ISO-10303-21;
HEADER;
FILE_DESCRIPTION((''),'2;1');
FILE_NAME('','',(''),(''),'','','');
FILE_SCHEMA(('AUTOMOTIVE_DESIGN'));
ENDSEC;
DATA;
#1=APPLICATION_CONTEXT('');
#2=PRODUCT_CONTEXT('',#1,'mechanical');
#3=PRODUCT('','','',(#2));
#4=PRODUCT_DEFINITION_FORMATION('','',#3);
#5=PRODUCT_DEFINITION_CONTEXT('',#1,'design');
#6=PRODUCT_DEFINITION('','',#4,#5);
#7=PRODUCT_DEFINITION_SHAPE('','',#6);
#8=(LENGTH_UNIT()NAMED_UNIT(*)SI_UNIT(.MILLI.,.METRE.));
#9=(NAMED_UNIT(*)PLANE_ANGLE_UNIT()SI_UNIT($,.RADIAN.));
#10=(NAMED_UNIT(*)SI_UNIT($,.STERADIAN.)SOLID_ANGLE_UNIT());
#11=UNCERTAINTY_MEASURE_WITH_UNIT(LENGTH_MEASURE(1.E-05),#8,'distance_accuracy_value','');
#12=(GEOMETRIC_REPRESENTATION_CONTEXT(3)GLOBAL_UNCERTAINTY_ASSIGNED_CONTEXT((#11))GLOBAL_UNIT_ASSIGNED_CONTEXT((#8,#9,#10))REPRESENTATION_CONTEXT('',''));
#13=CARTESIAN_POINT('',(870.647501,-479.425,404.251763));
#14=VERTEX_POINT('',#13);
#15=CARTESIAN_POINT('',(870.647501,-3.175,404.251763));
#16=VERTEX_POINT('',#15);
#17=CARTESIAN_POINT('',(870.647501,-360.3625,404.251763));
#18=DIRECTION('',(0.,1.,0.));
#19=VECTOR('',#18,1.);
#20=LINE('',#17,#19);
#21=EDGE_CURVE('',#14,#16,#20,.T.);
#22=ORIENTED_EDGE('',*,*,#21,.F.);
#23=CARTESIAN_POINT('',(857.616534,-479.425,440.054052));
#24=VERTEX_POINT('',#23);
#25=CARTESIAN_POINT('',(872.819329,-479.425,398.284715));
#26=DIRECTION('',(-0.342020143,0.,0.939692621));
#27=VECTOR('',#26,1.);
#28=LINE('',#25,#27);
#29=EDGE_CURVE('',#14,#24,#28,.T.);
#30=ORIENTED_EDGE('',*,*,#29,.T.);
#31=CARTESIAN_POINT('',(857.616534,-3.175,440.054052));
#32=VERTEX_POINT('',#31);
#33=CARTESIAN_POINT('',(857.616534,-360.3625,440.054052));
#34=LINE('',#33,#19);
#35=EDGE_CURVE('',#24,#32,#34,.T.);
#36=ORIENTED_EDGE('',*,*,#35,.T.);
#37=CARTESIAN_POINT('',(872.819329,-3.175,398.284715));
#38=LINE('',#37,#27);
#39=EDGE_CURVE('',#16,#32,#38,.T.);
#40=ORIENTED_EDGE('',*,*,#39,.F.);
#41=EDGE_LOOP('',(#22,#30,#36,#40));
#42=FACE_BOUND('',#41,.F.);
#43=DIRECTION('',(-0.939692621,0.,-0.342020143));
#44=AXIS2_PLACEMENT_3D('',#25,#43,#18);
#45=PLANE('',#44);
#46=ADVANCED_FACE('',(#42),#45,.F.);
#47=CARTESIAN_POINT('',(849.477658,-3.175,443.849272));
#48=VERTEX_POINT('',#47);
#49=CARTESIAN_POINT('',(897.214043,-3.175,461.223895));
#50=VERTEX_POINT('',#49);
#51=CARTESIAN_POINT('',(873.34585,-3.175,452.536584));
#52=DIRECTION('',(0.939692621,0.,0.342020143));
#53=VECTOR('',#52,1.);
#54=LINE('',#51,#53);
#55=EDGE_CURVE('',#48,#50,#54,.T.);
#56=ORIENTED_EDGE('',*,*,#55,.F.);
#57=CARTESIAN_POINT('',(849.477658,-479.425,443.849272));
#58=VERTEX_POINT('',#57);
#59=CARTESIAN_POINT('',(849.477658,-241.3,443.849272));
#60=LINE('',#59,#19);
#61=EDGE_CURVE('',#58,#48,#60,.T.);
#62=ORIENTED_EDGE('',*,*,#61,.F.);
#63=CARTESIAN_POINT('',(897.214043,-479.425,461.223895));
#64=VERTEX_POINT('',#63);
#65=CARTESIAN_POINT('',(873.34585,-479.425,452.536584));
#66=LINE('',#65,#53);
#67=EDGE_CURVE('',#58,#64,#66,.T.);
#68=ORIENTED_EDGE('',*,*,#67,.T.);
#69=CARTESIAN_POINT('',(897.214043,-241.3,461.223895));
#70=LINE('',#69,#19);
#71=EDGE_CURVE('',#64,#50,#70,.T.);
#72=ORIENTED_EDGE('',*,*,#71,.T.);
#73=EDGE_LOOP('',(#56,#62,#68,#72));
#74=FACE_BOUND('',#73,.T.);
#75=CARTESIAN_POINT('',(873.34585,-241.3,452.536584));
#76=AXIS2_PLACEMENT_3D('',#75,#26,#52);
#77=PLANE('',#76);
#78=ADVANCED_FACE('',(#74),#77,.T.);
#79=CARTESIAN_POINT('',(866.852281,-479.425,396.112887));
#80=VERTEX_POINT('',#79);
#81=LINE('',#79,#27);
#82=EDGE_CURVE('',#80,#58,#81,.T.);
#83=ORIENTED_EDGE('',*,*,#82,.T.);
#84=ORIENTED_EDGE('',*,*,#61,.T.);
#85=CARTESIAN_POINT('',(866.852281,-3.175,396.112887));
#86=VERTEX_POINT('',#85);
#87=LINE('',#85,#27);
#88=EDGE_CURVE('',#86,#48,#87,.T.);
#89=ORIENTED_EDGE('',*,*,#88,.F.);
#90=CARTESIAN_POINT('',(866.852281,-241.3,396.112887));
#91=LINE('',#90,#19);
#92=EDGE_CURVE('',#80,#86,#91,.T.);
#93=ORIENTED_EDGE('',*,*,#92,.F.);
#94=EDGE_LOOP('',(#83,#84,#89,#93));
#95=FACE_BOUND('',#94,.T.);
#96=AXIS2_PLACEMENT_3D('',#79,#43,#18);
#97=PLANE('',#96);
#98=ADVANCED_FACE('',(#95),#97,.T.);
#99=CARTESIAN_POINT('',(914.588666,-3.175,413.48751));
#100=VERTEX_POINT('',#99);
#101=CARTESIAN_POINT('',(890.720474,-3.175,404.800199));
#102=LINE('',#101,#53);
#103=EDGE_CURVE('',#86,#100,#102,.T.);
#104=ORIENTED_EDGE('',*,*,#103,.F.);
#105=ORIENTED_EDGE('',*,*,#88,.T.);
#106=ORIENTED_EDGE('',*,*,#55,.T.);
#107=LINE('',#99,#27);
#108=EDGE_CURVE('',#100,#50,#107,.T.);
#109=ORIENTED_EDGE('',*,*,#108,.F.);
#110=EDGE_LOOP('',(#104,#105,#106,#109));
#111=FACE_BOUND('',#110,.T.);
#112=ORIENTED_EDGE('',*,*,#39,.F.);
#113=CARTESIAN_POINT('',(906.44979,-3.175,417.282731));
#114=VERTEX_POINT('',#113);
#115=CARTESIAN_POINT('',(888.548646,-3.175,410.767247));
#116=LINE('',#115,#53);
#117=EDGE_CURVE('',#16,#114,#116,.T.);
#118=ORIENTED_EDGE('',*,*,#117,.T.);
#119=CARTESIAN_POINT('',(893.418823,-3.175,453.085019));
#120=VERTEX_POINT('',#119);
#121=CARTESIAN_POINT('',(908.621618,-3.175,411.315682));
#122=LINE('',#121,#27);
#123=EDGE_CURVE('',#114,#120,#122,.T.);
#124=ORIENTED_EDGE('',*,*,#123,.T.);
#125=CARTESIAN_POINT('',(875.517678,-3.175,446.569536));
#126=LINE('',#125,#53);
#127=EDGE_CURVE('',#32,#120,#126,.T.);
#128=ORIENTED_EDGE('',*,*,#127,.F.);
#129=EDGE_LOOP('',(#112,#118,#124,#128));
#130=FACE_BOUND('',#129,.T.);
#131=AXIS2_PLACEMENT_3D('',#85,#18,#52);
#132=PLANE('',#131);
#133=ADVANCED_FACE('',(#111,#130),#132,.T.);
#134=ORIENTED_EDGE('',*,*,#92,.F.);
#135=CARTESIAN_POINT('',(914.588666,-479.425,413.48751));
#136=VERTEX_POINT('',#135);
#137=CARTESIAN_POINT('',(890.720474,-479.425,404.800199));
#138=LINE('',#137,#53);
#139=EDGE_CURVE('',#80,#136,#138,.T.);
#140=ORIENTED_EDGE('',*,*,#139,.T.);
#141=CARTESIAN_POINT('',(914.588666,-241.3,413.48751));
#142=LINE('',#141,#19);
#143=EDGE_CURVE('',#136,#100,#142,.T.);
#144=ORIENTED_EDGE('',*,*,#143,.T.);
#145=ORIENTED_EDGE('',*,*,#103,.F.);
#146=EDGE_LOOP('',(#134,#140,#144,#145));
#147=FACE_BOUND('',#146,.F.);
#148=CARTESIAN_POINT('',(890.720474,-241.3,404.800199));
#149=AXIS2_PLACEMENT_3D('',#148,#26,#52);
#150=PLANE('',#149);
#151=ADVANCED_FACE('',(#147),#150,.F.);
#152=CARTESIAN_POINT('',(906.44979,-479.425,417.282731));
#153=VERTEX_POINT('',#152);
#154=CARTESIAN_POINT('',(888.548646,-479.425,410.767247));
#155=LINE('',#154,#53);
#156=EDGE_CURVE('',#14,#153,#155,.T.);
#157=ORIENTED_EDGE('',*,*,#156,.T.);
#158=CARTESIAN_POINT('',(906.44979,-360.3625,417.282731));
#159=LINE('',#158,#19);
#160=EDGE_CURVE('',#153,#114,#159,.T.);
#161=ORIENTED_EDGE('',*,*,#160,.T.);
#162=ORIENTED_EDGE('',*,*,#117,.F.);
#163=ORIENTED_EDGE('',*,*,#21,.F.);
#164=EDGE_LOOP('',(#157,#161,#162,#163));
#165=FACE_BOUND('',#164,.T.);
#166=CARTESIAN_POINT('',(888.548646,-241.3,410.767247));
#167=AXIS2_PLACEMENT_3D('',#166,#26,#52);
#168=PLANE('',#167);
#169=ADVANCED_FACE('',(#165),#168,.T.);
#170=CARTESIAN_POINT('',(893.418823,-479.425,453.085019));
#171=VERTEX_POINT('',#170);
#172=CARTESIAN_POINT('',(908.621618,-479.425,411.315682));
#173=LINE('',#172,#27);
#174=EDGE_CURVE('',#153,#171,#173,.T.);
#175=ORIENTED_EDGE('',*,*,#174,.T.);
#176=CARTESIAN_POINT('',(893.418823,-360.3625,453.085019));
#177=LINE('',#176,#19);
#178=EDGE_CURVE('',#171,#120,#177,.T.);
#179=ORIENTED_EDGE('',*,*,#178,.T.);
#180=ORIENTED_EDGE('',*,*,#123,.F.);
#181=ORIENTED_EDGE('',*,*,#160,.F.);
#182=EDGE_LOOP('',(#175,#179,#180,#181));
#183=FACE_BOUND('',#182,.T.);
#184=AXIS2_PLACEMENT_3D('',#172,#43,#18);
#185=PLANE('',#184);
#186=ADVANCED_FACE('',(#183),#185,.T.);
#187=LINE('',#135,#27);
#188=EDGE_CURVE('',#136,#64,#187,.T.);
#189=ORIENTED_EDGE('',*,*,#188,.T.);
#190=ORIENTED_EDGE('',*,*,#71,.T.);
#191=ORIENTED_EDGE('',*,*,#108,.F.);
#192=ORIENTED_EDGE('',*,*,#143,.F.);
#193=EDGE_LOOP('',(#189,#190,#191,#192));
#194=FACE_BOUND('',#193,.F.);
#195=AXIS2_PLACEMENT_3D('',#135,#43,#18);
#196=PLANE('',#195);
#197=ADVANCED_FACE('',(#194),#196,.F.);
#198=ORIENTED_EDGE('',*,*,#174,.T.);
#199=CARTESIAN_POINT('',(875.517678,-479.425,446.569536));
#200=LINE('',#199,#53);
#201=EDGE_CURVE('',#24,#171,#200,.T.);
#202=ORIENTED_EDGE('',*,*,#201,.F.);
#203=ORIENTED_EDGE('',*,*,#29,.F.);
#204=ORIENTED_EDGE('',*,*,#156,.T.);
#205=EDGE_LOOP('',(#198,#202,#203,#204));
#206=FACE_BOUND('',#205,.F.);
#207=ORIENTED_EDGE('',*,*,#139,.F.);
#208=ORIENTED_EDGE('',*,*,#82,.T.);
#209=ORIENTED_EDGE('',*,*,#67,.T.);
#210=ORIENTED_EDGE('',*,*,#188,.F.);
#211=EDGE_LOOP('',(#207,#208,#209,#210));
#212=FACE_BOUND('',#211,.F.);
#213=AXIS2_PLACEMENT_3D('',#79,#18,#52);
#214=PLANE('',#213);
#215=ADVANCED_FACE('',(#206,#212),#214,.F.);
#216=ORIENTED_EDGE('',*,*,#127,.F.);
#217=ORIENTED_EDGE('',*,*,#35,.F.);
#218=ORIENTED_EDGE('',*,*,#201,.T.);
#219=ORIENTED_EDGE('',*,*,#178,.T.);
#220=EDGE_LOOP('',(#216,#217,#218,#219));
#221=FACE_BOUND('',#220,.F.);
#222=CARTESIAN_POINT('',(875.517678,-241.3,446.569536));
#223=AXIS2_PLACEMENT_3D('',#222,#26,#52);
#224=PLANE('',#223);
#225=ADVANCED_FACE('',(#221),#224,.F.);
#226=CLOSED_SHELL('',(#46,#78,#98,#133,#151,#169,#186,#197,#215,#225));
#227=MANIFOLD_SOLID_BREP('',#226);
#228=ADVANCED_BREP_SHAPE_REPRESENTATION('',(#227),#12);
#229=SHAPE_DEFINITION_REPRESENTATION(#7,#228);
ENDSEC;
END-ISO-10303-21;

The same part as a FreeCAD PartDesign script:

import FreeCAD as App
import Part
import Sketcher

V = App.Vector
Q = App.Units.Quantity


def faces_at(feature, points):
    """Names of the faces that lie closest to the given points."""
    faces = feature.Shape.Faces
    near = lambda p: min(range(len(faces)), key=lambda i: faces[i].distToShape(Part.Vertex(*p))[0])
    return sorted({f"Face{near(p) + 1}" for p in points})


def add_polygon(sketch, points):
    """Adds a closed chain of lines whose ends are joined by coincident constraints."""
    first, n = sketch.GeometryCount, len(points)
    for a, b in zip(points, points[1:] + points[:1]):
        sketch.addGeometry(Part.LineSegment(App.Vector(*a, 0), App.Vector(*b, 0)), False)
    for i in range(n):
        sketch.addConstraint(Sketcher.Constraint("Coincident", first + i, 2, first + (i + 1) % n, 1))

doc = App.newDocument("Part")
body = doc.addObject("PartDesign::Body", "Body")

# Sketch on XY plane
sketch1 = body.newObject("Sketcher::SketchObject", "Sketch")
sketch1.AttachmentSupport = (doc.getObject("XY_Plane"), [""])
sketch1.MapMode = "FlatFace"
add_polygon(sketch1, [(0, 476), (0, 0), (51, 0), (51, 476)])  # lines 0-3
sketch1.addConstraint([
    Sketcher.Constraint("Vertical", 0),
    Sketcher.Constraint("Horizontal", 1),
    Sketcher.Constraint("Vertical", 2),
    Sketcher.Constraint("Horizontal", 3),
    Sketcher.Constraint("Coincident", 0, 2, -1, 1),
    Sketcher.Constraint("DistanceX", 1, 1, 1, 2, Q("2 in")),
    Sketcher.Constraint("DistanceY", 0, 2, 0, 1, Q("18.75 in")),
])
pad1 = body.newObject("PartDesign::Pad", "Pad")
pad1.Profile = sketch1
pad1.Length = Q("2 in")
body2 = doc.addObject("PartDesign::Body", "Body001")
doc.recompute()

body.Placement = App.Placement(V(0, 0, 0), App.Rotation(V(0, 1, 0), 340))
boolean = body2.newObject("PartDesign::Boolean", "Boolean")
boolean.Type = "Fuse"
boolean.addObjects([body])
body3 = doc.addObject("PartDesign::Body", "Body002")
doc.recompute()

body2.Placement = App.Placement(V(866.852281, -479.425, 396.112887), App.Rotation(V(0, 0, 1), 0))
boolean2 = body3.newObject("PartDesign::Boolean", "Boolean001")
boolean2.Type = "Fuse"
boolean2.addObjects([body2])
doc.recompute()

thickness = body3.newObject("PartDesign::Thickness", "Thickness")
thickness.Base = (boolean2, faces_at(boolean2, [(882.033, -479.425, 428.668), (882.033, -3.175, 428.668)]))
thickness.Value = Q("0.25 in")
thickness.Reversed = True
thickness.Join = "Arc"

doc.recompute()
